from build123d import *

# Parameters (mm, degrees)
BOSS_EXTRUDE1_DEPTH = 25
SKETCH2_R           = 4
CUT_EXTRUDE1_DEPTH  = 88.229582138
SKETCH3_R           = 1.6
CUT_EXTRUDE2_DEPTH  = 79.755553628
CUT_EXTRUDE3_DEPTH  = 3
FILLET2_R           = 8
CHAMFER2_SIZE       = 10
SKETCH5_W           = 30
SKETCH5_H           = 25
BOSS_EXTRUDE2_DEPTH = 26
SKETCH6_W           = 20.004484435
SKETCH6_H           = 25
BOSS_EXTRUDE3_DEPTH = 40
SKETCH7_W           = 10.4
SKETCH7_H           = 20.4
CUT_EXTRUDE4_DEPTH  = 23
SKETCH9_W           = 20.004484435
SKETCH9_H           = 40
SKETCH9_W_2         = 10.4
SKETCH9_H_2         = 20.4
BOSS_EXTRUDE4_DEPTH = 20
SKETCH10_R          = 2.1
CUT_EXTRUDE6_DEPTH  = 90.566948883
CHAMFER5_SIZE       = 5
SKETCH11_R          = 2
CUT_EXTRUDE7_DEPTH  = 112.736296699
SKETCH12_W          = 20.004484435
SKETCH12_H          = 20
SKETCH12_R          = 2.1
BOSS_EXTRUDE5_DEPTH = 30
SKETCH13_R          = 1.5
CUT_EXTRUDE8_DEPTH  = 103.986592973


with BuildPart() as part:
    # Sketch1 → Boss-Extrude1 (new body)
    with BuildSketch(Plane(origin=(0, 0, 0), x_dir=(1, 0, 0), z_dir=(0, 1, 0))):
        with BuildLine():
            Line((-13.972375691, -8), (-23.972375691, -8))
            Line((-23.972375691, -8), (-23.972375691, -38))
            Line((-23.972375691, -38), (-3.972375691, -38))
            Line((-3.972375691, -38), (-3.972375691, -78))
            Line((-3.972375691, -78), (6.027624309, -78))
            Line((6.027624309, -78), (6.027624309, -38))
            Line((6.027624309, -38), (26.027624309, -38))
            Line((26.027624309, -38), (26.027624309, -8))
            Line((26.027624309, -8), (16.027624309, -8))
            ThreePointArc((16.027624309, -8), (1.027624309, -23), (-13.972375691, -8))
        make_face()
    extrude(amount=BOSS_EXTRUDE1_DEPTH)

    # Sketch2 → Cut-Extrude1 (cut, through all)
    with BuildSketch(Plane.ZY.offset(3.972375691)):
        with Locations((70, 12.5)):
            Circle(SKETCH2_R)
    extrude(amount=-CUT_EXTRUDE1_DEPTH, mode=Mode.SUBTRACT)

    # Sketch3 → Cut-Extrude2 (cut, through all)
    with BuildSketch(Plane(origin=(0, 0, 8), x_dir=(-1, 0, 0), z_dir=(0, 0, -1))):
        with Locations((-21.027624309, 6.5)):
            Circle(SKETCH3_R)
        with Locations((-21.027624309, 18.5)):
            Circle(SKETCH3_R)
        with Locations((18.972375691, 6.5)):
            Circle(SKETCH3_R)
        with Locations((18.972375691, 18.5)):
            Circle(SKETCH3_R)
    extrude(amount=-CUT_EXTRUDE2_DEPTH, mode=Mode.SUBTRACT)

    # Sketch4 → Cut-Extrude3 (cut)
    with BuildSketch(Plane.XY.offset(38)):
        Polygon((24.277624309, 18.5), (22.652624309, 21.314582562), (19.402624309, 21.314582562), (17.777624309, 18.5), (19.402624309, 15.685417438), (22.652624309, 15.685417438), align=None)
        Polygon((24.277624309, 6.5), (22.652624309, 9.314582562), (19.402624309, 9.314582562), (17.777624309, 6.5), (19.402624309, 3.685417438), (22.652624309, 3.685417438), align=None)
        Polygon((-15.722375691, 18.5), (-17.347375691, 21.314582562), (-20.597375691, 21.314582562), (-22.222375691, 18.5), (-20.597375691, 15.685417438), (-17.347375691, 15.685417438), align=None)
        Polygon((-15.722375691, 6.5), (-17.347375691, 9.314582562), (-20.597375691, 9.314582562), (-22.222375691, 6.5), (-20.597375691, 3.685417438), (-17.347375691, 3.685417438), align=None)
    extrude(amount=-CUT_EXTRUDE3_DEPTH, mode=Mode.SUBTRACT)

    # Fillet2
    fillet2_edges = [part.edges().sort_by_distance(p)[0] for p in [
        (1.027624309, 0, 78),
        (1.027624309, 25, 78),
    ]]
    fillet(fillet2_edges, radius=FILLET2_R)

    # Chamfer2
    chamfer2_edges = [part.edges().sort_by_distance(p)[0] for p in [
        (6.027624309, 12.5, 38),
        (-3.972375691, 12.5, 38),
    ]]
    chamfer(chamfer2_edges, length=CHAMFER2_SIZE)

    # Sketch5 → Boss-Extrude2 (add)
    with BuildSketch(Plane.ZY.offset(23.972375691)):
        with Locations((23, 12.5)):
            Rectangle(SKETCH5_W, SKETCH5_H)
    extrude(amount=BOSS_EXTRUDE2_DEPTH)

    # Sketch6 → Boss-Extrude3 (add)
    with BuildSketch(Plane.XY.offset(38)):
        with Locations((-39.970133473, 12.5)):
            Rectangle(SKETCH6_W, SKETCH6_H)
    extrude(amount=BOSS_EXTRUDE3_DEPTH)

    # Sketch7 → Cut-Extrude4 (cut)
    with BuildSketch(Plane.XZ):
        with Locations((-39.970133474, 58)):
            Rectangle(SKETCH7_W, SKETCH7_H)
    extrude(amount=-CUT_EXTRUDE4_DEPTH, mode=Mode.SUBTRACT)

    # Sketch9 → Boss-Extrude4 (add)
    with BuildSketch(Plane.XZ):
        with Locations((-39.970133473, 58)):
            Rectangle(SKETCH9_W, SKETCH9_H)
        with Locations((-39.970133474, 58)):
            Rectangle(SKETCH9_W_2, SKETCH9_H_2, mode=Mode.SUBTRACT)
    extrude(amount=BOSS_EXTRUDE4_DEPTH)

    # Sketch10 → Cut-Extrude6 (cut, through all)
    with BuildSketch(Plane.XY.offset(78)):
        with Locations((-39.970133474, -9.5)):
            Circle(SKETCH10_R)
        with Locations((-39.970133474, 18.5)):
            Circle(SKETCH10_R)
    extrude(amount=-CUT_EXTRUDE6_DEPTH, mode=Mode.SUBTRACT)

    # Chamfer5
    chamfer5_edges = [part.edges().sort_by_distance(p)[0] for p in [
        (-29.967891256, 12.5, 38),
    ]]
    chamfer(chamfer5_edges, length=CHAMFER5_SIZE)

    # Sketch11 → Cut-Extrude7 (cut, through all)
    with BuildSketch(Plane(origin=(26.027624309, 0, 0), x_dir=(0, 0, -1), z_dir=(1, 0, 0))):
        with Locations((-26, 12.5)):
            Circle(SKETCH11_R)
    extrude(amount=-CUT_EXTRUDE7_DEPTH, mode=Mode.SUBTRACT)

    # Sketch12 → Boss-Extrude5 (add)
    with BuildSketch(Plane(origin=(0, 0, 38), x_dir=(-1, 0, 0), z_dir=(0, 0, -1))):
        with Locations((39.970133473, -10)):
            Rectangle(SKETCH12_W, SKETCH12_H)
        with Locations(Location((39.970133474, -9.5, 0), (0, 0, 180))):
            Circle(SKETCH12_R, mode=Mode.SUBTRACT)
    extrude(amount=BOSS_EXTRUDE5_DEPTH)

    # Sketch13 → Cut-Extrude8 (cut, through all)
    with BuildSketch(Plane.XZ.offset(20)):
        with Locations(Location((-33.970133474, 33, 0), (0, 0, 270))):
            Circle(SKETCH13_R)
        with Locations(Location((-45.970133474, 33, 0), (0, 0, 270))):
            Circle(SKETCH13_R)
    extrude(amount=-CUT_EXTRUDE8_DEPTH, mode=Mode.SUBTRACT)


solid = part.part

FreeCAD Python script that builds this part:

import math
import FreeCAD as App
import Part
import Sketcher

V = App.Vector
Q = App.Units.Quantity


def edges_at(feature, points):
    """Names of the edges that pass closest to the given points."""
    edges = feature.Shape.Edges
    near = lambda p: min(range(len(edges)), key=lambda i: edges[i].distToShape(Part.Vertex(*p))[0])
    return sorted({f"Edge{near(p) + 1}" for p in points})


def add_polygon(sketch, points):
    """Adds a closed chain of lines whose ends are joined by coincident constraints."""
    first, n = sketch.GeometryCount, len(points)
    for a, b in zip(points, points[1:] + points[:1]):
        sketch.addGeometry(Part.LineSegment(App.Vector(*a, 0), App.Vector(*b, 0)), False)
    for i in range(n):
        sketch.addConstraint(Sketcher.Constraint("Coincident", first + i, 2, first + (i + 1) % n, 1))

doc = App.newDocument("Part")
body = doc.addObject("PartDesign::Body", "Body")

# Sketch on XZ plane
sketch1 = doc.addObject("Sketcher::SketchObject", "Sketch")
body.addObject(sketch1)
sketch1.AttachmentSupport = (doc.XZ_Plane, [""])
sketch1.MapMode = "FlatFace"
sketch1.addGeometry([
    Part.LineSegment(V(-14, 8, 0), V(-24, 8, 0)),  # 0
    Part.LineSegment(V(-24, 8, 0), V(-24, 38, 0)),  # 1
    Part.LineSegment(V(-24, 38, 0), V(-4, 38, 0)),  # 2
    Part.LineSegment(V(-4, 38, 0), V(-4, 78, 0)),  # 3
    Part.LineSegment(V(-4, 78, 0), V(6, 78, 0)),  # 4
    Part.LineSegment(V(6, 78, 0), V(6, 38, 0)),  # 5
    Part.LineSegment(V(6, 38, 0), V(26, 38, 0)),  # 6
    Part.LineSegment(V(26, 38, 0), V(26, 8, 0)),  # 7
    Part.LineSegment(V(26, 8, 0), V(16, 8, 0)),  # 8
    Part.ArcOfCircle(Part.Circle(V(1, 8, 0), V(0, 0, 1), 15), math.radians(0), math.radians(180)),  # 9
], False)
sketch1.addConstraint([
    Sketcher.Constraint("Coincident", 0, 2, 1, 1),
    Sketcher.Constraint("Coincident", 1, 2, 2, 1),
    Sketcher.Constraint("Coincident", 2, 2, 3, 1),
    Sketcher.Constraint("Coincident", 3, 2, 4, 1),
    Sketcher.Constraint("Coincident", 4, 2, 5, 1),
    Sketcher.Constraint("Coincident", 5, 2, 6, 1),
    Sketcher.Constraint("Coincident", 6, 2, 7, 1),
    Sketcher.Constraint("Coincident", 7, 2, 8, 1),
    Sketcher.Constraint("Coincident", 8, 2, 9, 1),
    Sketcher.Constraint("Coincident", 9, 2, 0, 1),
    Sketcher.Constraint("Horizontal", 0),
    Sketcher.Constraint("Vertical", 1),
    Sketcher.Constraint("Horizontal", 2),
    Sketcher.Constraint("Vertical", 3),
    Sketcher.Constraint("Horizontal", 4),
    Sketcher.Constraint("Vertical", 5),
    Sketcher.Constraint("Horizontal", 6),
    Sketcher.Constraint("Vertical", 7),
    Sketcher.Constraint("Horizontal", 8),
    Sketcher.Constraint("Horizontal", 9, 3, 0, 2),
    Sketcher.Constraint("Horizontal", 2, 2, 5, 2),
    Sketcher.Constraint("Horizontal", 0, 2, 7, 2),
    Sketcher.Constraint("Equal", 0, 4),
    Sketcher.Constraint("Equal", 2, 6),
    Sketcher.Constraint("Equal", 4, 8),
    Sketcher.Constraint("Radius", 9, Q("15 mm")),
    Sketcher.Constraint("DistanceX", 0, 2, 0, 1, Q("10 mm")),
    Sketcher.Constraint("DistanceY", 1, 1, 1, 2, Q("30 mm")),
    Sketcher.Constraint("DistanceY", 3, 1, 3, 2, Q("40 mm")),
    Sketcher.Constraint("DistanceY", -1, 1, 9, 3, Q("8 mm")),
    Sketcher.Constraint("DistanceX", -1, 1, 9, 3, Q("1.027624 mm")),
])
pad1 = doc.addObject("PartDesign::Pad", "Pad")
body.addObject(pad1)
pad1.Profile = sketch1
pad1.Length = 25
pad1.Reversed = True

# Sketch on YZ plane
sketch2 = doc.addObject("Sketcher::SketchObject", "Sketch001")
body.addObject(sketch2)
sketch2.AttachmentSupport = (doc.YZ_Plane, [""])
sketch2.MapMode = "FlatFace"
sketch2.AttachmentOffset = App.Placement(V(0, 0, -3.972376), App.Rotation())
sketch2.addGeometry(Part.Circle(V(12.5, 70, 0), V(0, 0, 1), 4), False)
sketch2.addConstraint([
    Sketcher.Constraint("Diameter", 0, Q("8 mm")),
    Sketcher.Constraint("DistanceY", -1, 1, 0, 3, Q("70 mm")),
    Sketcher.Constraint("DistanceX", -1, 1, 0, 3, Q("12.5 mm")),
])
pocket1 = doc.addObject("PartDesign::Pocket", "Pocket")
body.addObject(pocket1)
pocket1.Profile = sketch2
pocket1.Type = "ThroughAll"
pocket1.Reversed = True

# Sketch on XY plane
sketch3 = doc.addObject("Sketcher::SketchObject", "Sketch002")
body.addObject(sketch3)
sketch3.AttachmentSupport = (doc.XY_Plane, [""])
sketch3.MapMode = "FlatFace"
sketch3.AttachmentOffset = App.Placement(V(0, 0, 8), App.Rotation())
sketch3.addGeometry([
    Part.Circle(V(21, 6.5, 0), V(0, 0, 1), 1.6),
    Part.Circle(V(21, 18.5, 0), V(0, 0, 1), 1.6),
    Part.Circle(V(-19, 6.5, 0), V(0, 0, 1), 1.6),
    Part.Circle(V(-19, 18.5, 0), V(0, 0, 1), 1.6),
], False)
sketch3.addConstraint([
    Sketcher.Constraint("Equal", 0, 1),
    Sketcher.Constraint("Equal", 1, 2),
    Sketcher.Constraint("Equal", 2, 3),
    Sketcher.Constraint("Horizontal", 0, 3, 2, 3),
    Sketcher.Constraint("Horizontal", 1, 3, 3, 3),
    Sketcher.Constraint("Vertical", 0, 3, 1, 3),
    Sketcher.Constraint("Vertical", 2, 3, 3, 3),
    Sketcher.Constraint("Diameter", 0, Q("3.2 mm")),
    Sketcher.Constraint("DistanceY", 0, 3, 1, 3, Q("12 mm")),
    Sketcher.Constraint("DistanceX", 2, 3, 0, 3, Q("40 mm")),
    Sketcher.Constraint("DistanceY", -1, 1, 0, 3, Q("6.5 mm")),
    Sketcher.Constraint("DistanceX", -1, 1, 0, 3, Q("21.027624 mm")),
])
pocket2 = doc.addObject("PartDesign::Pocket", "Pocket001")
body.addObject(pocket2)
pocket2.Profile = sketch3
pocket2.Type = "ThroughAll"
pocket2.Reversed = True

# Sketch on XY plane
sketch4 = doc.addObject("Sketcher::SketchObject", "Sketch003")
body.addObject(sketch4)
sketch4.AttachmentSupport = (doc.XY_Plane, [""])
sketch4.MapMode = "FlatFace"
sketch4.AttachmentOffset = App.Placement(V(0, 0, 38), App.Rotation())
add_polygon(sketch4, [(24.3, 18.5), (22.7, 21.3), (19.4, 21.3), (17.8, 18.5), (19.4, 15.7), (22.7, 15.7)])  # lines 0-5
add_polygon(sketch4, [(24.3, 6.5), (22.7, 9.3), (19.4, 9.3), (17.8, 6.5), (19.4, 3.7), (22.7, 3.7)])  # lines 6-11
add_polygon(sketch4, [(-15.7, 18.5), (-17.3, 21.3), (-20.6, 21.3), (-22.2, 18.5), (-20.6, 15.7), (-17.3, 15.7)])  # lines 12-17
add_polygon(sketch4, [(-15.7, 6.5), (-17.3, 9.3), (-20.6, 9.3), (-22.2, 6.5), (-20.6, 3.7), (-17.3, 3.7)])  # lines 18-23
sketch4.addConstraint([
    Sketcher.Constraint("Horizontal", 1),
    Sketcher.Constraint("Horizontal", 4),
    Sketcher.Constraint("Horizontal", 7),
    Sketcher.Constraint("Horizontal", 10),
    Sketcher.Constraint("Horizontal", 13),
    Sketcher.Constraint("Horizontal", 16),
    Sketcher.Constraint("Horizontal", 19),
    Sketcher.Constraint("Horizontal", 22),
    Sketcher.Constraint("Parallel", 0, 3),
    Sketcher.Constraint("Parallel", 2, 5),
    Sketcher.Constraint("Parallel", 3, 6),
    Sketcher.Constraint("Parallel", 5, 8),
    Sketcher.Constraint("Parallel", 6, 9),
    Sketcher.Constraint("Parallel", 8, 11),
    Sketcher.Constraint("Parallel", 9, 12),
    Sketcher.Constraint("Parallel", 11, 14),
    Sketcher.Constraint("Parallel", 12, 15),
    Sketcher.Constraint("Parallel", 14, 17),
    Sketcher.Constraint("Parallel", 15, 18),
    Sketcher.Constraint("Parallel", 17, 20),
    Sketcher.Constraint("Parallel", 18, 21),
    Sketcher.Constraint("Parallel", 20, 23),
    Sketcher.Constraint("Horizontal", 2, 2, 5, 2),
    Sketcher.Constraint("Horizontal", 8, 2, 11, 2),
    Sketcher.Constraint("Horizontal", 1, 2, 12, 2),
    Sketcher.Constraint("Horizontal", 5, 2, 14, 2),
    Sketcher.Constraint("Horizontal", 4, 2, 15, 2),
    Sketcher.Constraint("Horizontal", 14, 2, 17, 2),
    Sketcher.Constraint("Horizontal", 7, 2, 18, 2),
    Sketcher.Constraint("Horizontal", 11, 2, 20, 2),
    Sketcher.Constraint("Horizontal", 10, 2, 21, 2),
    Sketcher.Constraint("Horizontal", 20, 2, 23, 2),
    Sketcher.Constraint("Vertical", 1, 2, 3, 2),
    Sketcher.Constraint("Vertical", 0, 2, 4, 2),
    Sketcher.Constraint("Vertical", 4, 2, 6, 2),
    Sketcher.Constraint("Vertical", 3, 2, 7, 2),
    Sketcher.Constraint("Vertical", 2, 2, 8, 2),
    Sketcher.Constraint("Vertical", 7, 2, 9, 2),
    Sketcher.Constraint("Vertical", 16, 2, 18, 2),
    Sketcher.Constraint("Vertical", 15, 2, 19, 2),
    Sketcher.Constraint("Equal", 10, 13),
    Sketcher.Constraint("Angle", 0, Q("120 deg")),
    Sketcher.Constraint("DistanceY", 6, 2, 0, 2, Q("12 mm")),
    Sketcher.Constraint("DistanceX", 13, 2, 1, 2, Q("40 mm")),
    Sketcher.Constraint("DistanceX", 1, 2, 1, 1, Q("3.25 mm")),
    Sketcher.Constraint("DistanceY", -1, 1, 2, 2, Q("18.5 mm")),
    Sketcher.Constraint("DistanceX", 2, 2, 5, 2, Q("6.5 mm")),
    Sketcher.Constraint("DistanceX", -1, 1, 0, 2, Q("22.652624 mm")),
])
pocket3 = doc.addObject("PartDesign::Pocket", "Pocket002")
body.addObject(pocket3)
pocket3.Profile = sketch4
pocket3.Length = 3
doc.recompute()

fillet = doc.addObject("PartDesign::Fillet", "Fillet")
body.addObject(fillet)
fillet.Base = (pocket3, edges_at(pocket3, [(1.028, 0, 78), (1.028, 25, 78)]))
fillet.Radius = 8
doc.recompute()

chamfer = doc.addObject("PartDesign::Chamfer", "Chamfer")
body.addObject(chamfer)
chamfer.Base = (fillet, edges_at(fillet, [(6.028, 12.5, 38), (-3.972, 12.5, 38)]))
chamfer.Size = 10

# Sketch on YZ plane
sketch5 = doc.addObject("Sketcher::SketchObject", "Sketch004")
body.addObject(sketch5)
sketch5.AttachmentSupport = (doc.YZ_Plane, [""])
sketch5.MapMode = "FlatFace"
sketch5.AttachmentOffset = App.Placement(V(0, 0, -23.972376), App.Rotation())
add_polygon(sketch5, [(25, 8), (0, 8), (0, 38), (25, 38)])  # lines 0-3
sketch5.addConstraint([
    Sketcher.Constraint("Horizontal", 0),
    Sketcher.Constraint("Vertical", 1),
    Sketcher.Constraint("Horizontal", 2),
    Sketcher.Constraint("Vertical", 3),
    Sketcher.Constraint("PointOnObject", 0, 2, -2),
    Sketcher.Constraint("DistanceX", 0, 2, 0, 1, Q("25 mm")),
    Sketcher.Constraint("DistanceY", 1, 1, 1, 2, Q("30 mm")),
    Sketcher.Constraint("DistanceY", -1, 1, 0, 2, Q("8 mm")),
])
pad2 = doc.addObject("PartDesign::Pad", "Pad001")
body.addObject(pad2)
pad2.Profile = sketch5
pad2.Length = 26
pad2.Reversed = True

# Sketch on XY plane
sketch6 = doc.addObject("Sketcher::SketchObject", "Sketch005")
body.addObject(sketch6)
sketch6.AttachmentSupport = (doc.XY_Plane, [""])
sketch6.MapMode = "FlatFace"
sketch6.AttachmentOffset = App.Placement(V(0, 0, 38), App.Rotation())
add_polygon(sketch6, [(-50, 25), (-50, 0), (-30, 0), (-30, 25)])  # lines 0-3
sketch6.addConstraint([
    Sketcher.Constraint("Vertical", 0),
    Sketcher.Constraint("Horizontal", 1),
    Sketcher.Constraint("Vertical", 2),
    Sketcher.Constraint("Horizontal", 3),
    Sketcher.Constraint("PointOnObject", 0, 2, -1),
    Sketcher.Constraint("DistanceY", 0, 2, 0, 1, Q("25 mm")),
    Sketcher.Constraint("DistanceX", 1, 1, 1, 2, Q("20.004484 mm")),
    Sketcher.Constraint("DistanceX", 1, 2, -1, 1, Q("29.967891 mm")),
])
pad3 = doc.addObject("PartDesign::Pad", "Pad002")
body.addObject(pad3)
pad3.Profile = sketch6
pad3.Length = 40

# Sketch on XZ plane
sketch7 = doc.addObject("Sketcher::SketchObject", "Sketch006")
body.addObject(sketch7)
sketch7.AttachmentSupport = (doc.XZ_Plane, [""])
sketch7.MapMode = "FlatFace"
add_polygon(sketch7, [(-45, 68), (-45, 48), (-35, 48), (-35, 68)])  # lines 0-3
sketch7.addConstraint([
    Sketcher.Constraint("Vertical", 0),
    Sketcher.Constraint("Horizontal", 1),
    Sketcher.Constraint("Vertical", 2),
    Sketcher.Constraint("Horizontal", 3),
    Sketcher.Constraint("DistanceX", 1, 1, 1, 2, Q("10.4 mm")),
    Sketcher.Constraint("DistanceY", 0, 2, 0, 1, Q("20.4 mm")),
    Sketcher.Constraint("DistanceY", -1, 1, 0, 2, Q("47.8 mm")),
    Sketcher.Constraint("DistanceX", 0, 2, -1, 1, Q("45.170133 mm")),
])
pocket4 = doc.addObject("PartDesign::Pocket", "Pocket003")
body.addObject(pocket4)
pocket4.Profile = sketch7
pocket4.Length = 23

# Sketch on XZ plane
sketch8 = doc.addObject("Sketcher::SketchObject", "Sketch007")
body.addObject(sketch8)
sketch8.AttachmentSupport = (doc.XZ_Plane, [""])
sketch8.MapMode = "FlatFace"
add_polygon(sketch8, [(-50, 78), (-50, 38), (-30, 38), (-30, 78)])  # lines 0-3
add_polygon(sketch8, [(-35, 48), (-45, 48), (-45, 68), (-35, 68)])  # lines 4-7
sketch8.addConstraint([
    Sketcher.Constraint("Vertical", 0),
    Sketcher.Constraint("Horizontal", 1),
    Sketcher.Constraint("Vertical", 2),
    Sketcher.Constraint("Horizontal", 3),
    Sketcher.Constraint("Horizontal", 4),
    Sketcher.Constraint("Vertical", 5),
    Sketcher.Constraint("Horizontal", 6),
    Sketcher.Constraint("Vertical", 7),
    Sketcher.Constraint("DistanceY", 0, 2, 0, 1, Q("40 mm")),
    Sketcher.Constraint("DistanceX", 4, 2, 4, 1, Q("10.4 mm")),
    Sketcher.Constraint("DistanceY", 5, 1, 5, 2, Q("20.4 mm")),
    Sketcher.Constraint("DistanceY", -1, 1, 0, 2, Q("38 mm")),
    Sketcher.Constraint("DistanceY", -1, 1, 4, 2, Q("47.8 mm")),
    Sketcher.Constraint("DistanceX", 1, 1, 1, 2, Q("20.004484 mm")),
    Sketcher.Constraint("DistanceX", 1, 2, -1, 1, Q("29.967891 mm")),
    Sketcher.Constraint("DistanceX", 4, 2, -1, 1, Q("45.170133 mm")),
])
pad4 = doc.addObject("PartDesign::Pad", "Pad003")
body.addObject(pad4)
pad4.Profile = sketch8
pad4.Length = 20

# Sketch on XY plane
sketch9 = doc.addObject("Sketcher::SketchObject", "Sketch008")
body.addObject(sketch9)
sketch9.AttachmentSupport = (doc.XY_Plane, [""])
sketch9.MapMode = "FlatFace"
sketch9.AttachmentOffset = App.Placement(V(0, 0, 78), App.Rotation())
sketch9.addGeometry([
    Part.Circle(V(-40, -9.5, 0), V(0, 0, 1), 2.1),
    Part.Circle(V(-40, 18.5, 0), V(0, 0, 1), 2.1),
], False)
sketch9.addConstraint([
    Sketcher.Constraint("Equal", 0, 1),
    Sketcher.Constraint("Vertical", 0, 3, 1, 3),
    Sketcher.Constraint("Diameter", 0, Q("4.2 mm")),
    Sketcher.Constraint("DistanceY", 0, 3, 1, 3, Q("28 mm")),
    Sketcher.Constraint("DistanceY", 0, 3, -1, 1, Q("9.5 mm")),
    Sketcher.Constraint("DistanceX", 0, 3, -1, 1, Q("39.970133 mm")),
])
pocket5 = doc.addObject("PartDesign::Pocket", "Pocket004")
body.addObject(pocket5)
pocket5.Profile = sketch9
pocket5.Type = "ThroughAll"
doc.recompute()

chamfer2 = doc.addObject("PartDesign::Chamfer", "Chamfer001")
body.addObject(chamfer2)
chamfer2.Base = (pocket5, edges_at(pocket5, [(-29.968, 12.5, 38)]))
chamfer2.Size = 5

# Sketch on YZ plane
sketch10 = doc.addObject("Sketcher::SketchObject", "Sketch009")
body.addObject(sketch10)
sketch10.AttachmentSupport = (doc.YZ_Plane, [""])
sketch10.MapMode = "FlatFace"
sketch10.AttachmentOffset = App.Placement(V(0, 0, 26.027624), App.Rotation())
sketch10.addGeometry(Part.Circle(V(12.5, 26, 0), V(0, 0, 1), 2), False)
sketch10.addConstraint([
    Sketcher.Constraint("Diameter", 0, Q("4 mm")),
    Sketcher.Constraint("DistanceY", -1, 1, 0, 3, Q("26 mm")),
    Sketcher.Constraint("DistanceX", -1, 1, 0, 3, Q("12.5 mm")),
])
pocket6 = doc.addObject("PartDesign::Pocket", "Pocket005")
body.addObject(pocket6)
pocket6.Profile = sketch10
pocket6.Type = "ThroughAll"

# Sketch on XY plane
sketch11 = doc.addObject("Sketcher::SketchObject", "Sketch010")
body.addObject(sketch11)
sketch11.AttachmentSupport = (doc.XY_Plane, [""])
sketch11.MapMode = "FlatFace"
sketch11.AttachmentOffset = App.Placement(V(0, 0, 38), App.Rotation())
add_polygon(sketch11, [(-30, 0), (-30, -20), (-50, -20), (-50, 0)])  # lines 0-3
sketch11.addGeometry(Part.Circle(V(-40, -9.5, 0), V(0, 0, 1), 2.1), False)  # 4
sketch11.addConstraint([
    Sketcher.Constraint("Vertical", 0),
    Sketcher.Constraint("Horizontal", 1),
    Sketcher.Constraint("Vertical", 2),
    Sketcher.Constraint("Horizontal", 3),
    Sketcher.Constraint("PointOnObject", 2, 2, -1),
    Sketcher.Constraint("Diameter", 4, Q("4.2 mm")),
    Sketcher.Constraint("DistanceY", 0, 2, 0, 1, Q("20 mm")),
    Sketcher.Constraint("DistanceY", 4, 3, -1, 1, Q("9.5 mm")),
    Sketcher.Constraint("DistanceX", 1, 2, 1, 1, Q("20.004484 mm")),
    Sketcher.Constraint("DistanceX", 0, 2, -1, 1, Q("29.967891 mm")),
    Sketcher.Constraint("DistanceX", 4, 3, -1, 1, Q("39.970133 mm")),
])
pad5 = doc.addObject("PartDesign::Pad", "Pad004")
body.addObject(pad5)
pad5.Profile = sketch11
pad5.Length = 30
pad5.Reversed = True

# Sketch on XZ plane
sketch12 = doc.addObject("Sketcher::SketchObject", "Sketch011")
body.addObject(sketch12)
sketch12.AttachmentSupport = (doc.XZ_Plane, [""])
sketch12.MapMode = "FlatFace"
sketch12.AttachmentOffset = App.Placement(V(0, 0, 20), App.Rotation())
sketch12.addGeometry([
    Part.Circle(V(-34, 33, 0), V(0, 0, 1), 1.5),
    Part.Circle(V(-46, 33, 0), V(0, 0, 1), 1.5),
], False)
sketch12.addConstraint([
    Sketcher.Constraint("Equal", 0, 1),
    Sketcher.Constraint("Horizontal", 0, 3, 1, 3),
    Sketcher.Constraint("Diameter", 0, Q("3 mm")),
    Sketcher.Constraint("DistanceY", -1, 1, 0, 3, Q("33 mm")),
    Sketcher.Constraint("DistanceX", 1, 3, 0, 3, Q("12 mm")),
    Sketcher.Constraint("DistanceX", 0, 3, -1, 1, Q("33.970133 mm")),
])
pocket7 = doc.addObject("PartDesign::Pocket", "Pocket006")
body.addObject(pocket7)
pocket7.Profile = sketch12
pocket7.Type = "ThroughAll"

doc.recompute()
